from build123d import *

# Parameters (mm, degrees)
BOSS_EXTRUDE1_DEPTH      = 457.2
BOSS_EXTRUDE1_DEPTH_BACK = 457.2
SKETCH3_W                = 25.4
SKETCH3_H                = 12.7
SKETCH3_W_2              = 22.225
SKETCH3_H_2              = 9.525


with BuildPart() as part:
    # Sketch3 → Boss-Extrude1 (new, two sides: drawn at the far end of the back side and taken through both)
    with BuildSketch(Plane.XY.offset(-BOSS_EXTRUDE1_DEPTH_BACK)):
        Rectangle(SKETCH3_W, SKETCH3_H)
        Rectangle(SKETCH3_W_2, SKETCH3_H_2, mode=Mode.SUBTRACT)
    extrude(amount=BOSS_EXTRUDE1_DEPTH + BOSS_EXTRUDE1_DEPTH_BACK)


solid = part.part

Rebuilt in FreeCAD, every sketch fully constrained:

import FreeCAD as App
import Part
import Sketcher
Q = App.Units.Quantity

doc = App.newDocument("Part")
body = doc.addObject("PartDesign::Body", "Body")

# Sketch on XY plane
sketch1 = body.newObject("Sketcher::SketchObject", "Sketch")
sketch1.AttachmentSupport = (doc.getObject("XY_Plane"), [""])
sketch1.MapMode = "FlatFace"
sketch1.addGeometry([
    Part.LineSegment(App.Vector(-13, 6, 0), App.Vector(-13, -6, 0)),  # 0
    Part.LineSegment(App.Vector(-13, -6, 0), App.Vector(13, -6, 0)),  # 1
    Part.LineSegment(App.Vector(13, -6, 0), App.Vector(13, 6, 0)),  # 2
    Part.LineSegment(App.Vector(13, 6, 0), App.Vector(-13, 6, 0)),  # 3
    Part.LineSegment(App.Vector(11, -5, 0), App.Vector(-11, -5, 0)),  # 4
    Part.LineSegment(App.Vector(-11, -5, 0), App.Vector(-11, 5, 0)),  # 5
    Part.LineSegment(App.Vector(-11, 5, 0), App.Vector(11, 5, 0)),  # 6
    Part.LineSegment(App.Vector(11, 5, 0), App.Vector(11, -5, 0)),  # 7
], False)
sketch1.addConstraint([
    Sketcher.Constraint("Coincident", 0, 2, 1, 1),
    Sketcher.Constraint("Coincident", 1, 2, 2, 1),
    Sketcher.Constraint("Coincident", 2, 2, 3, 1),
    Sketcher.Constraint("Coincident", 3, 2, 0, 1),
    Sketcher.Constraint("Coincident", 4, 2, 5, 1),
    Sketcher.Constraint("Coincident", 5, 2, 6, 1),
    Sketcher.Constraint("Coincident", 6, 2, 7, 1),
    Sketcher.Constraint("Coincident", 7, 2, 4, 1),
    Sketcher.Constraint("Vertical", 0),
    Sketcher.Constraint("Horizontal", 1),
    Sketcher.Constraint("Vertical", 2),
    Sketcher.Constraint("Horizontal", 3),
    Sketcher.Constraint("Horizontal", 4),
    Sketcher.Constraint("Vertical", 5),
    Sketcher.Constraint("Horizontal", 6),
    Sketcher.Constraint("Vertical", 7),
    Sketcher.Constraint("Symmetric", 0, 2, 2, 2, -1, 1),
    Sketcher.Constraint("Symmetric", 4, 2, 6, 2, -1, 1),
    Sketcher.Constraint("DistanceX", 1, 1, 1, 2, Q("1 in")),
    Sketcher.Constraint("DistanceY", 0, 2, 0, 1, Q("0.5 in")),
    Sketcher.Constraint("DistanceX", 4, 2, 4, 1, Q("0.875 in")),
    Sketcher.Constraint("DistanceY", 5, 1, 5, 2, Q("0.375 in")),
])
pad1 = body.newObject("PartDesign::Pad", "Pad")
pad1.Profile = sketch1
pad1.Type = "TwoLengths"
pad1.Length = Q("18 in")
pad1.Length2 = Q("18 in")

doc.recompute()
